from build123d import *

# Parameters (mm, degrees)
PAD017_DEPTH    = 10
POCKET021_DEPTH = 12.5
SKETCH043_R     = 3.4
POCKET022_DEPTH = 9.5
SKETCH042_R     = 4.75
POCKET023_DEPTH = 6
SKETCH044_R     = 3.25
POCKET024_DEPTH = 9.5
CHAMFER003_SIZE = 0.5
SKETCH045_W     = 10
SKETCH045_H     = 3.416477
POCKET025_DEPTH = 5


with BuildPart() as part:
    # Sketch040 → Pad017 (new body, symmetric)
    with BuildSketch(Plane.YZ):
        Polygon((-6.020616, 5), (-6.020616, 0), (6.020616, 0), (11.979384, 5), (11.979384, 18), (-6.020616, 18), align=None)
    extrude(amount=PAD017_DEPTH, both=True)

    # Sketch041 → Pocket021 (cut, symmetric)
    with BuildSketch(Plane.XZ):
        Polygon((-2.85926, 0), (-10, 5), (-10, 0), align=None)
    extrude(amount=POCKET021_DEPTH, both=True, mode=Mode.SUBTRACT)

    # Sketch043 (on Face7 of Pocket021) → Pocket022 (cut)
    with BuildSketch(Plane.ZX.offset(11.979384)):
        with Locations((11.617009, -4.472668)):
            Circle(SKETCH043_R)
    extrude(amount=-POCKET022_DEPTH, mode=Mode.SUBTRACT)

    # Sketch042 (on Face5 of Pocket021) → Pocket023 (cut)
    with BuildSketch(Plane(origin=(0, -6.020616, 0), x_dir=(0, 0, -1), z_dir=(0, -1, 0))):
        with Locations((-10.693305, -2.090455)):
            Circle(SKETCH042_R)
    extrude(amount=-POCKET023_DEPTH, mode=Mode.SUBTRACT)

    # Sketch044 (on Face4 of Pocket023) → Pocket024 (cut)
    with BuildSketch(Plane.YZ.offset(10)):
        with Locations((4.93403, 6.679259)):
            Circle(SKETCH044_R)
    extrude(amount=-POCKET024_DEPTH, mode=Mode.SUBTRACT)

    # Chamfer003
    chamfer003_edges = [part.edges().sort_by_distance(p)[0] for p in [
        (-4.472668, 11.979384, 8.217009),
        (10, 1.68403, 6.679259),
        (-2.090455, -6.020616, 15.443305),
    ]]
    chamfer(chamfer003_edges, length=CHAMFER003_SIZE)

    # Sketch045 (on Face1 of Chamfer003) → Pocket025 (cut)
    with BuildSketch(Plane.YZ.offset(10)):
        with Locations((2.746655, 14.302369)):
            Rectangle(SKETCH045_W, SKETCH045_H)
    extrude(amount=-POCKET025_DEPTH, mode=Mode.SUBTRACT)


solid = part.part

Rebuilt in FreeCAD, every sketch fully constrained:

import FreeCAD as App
import Part
import Sketcher
from FreeCAD import Vector
Q = App.Units.Quantity


def edges_at(feature, points):
    """Names of the edges that pass closest to the given points."""
    edges = feature.Shape.Edges
    near = lambda p: min(range(len(edges)), key=lambda i: edges[i].distToShape(Part.Vertex(*p))[0])
    return sorted({f"Edge{near(p) + 1}" for p in points})


def add_polygon(sketch, points):
    """Adds a closed chain of lines whose ends are joined by coincident constraints."""
    first, n = sketch.GeometryCount, len(points)
    for a, b in zip(points, points[1:] + points[:1]):
        sketch.addGeometry(Part.LineSegment(App.Vector(*a, 0), App.Vector(*b, 0)), False)
    for i in range(n):
        sketch.addConstraint(Sketcher.Constraint("Coincident", first + i, 2, first + (i + 1) % n, 1))

doc = App.newDocument("Part")
body = doc.addObject("PartDesign::Body", "Body")

sketch1 = body.newObject("Sketcher::SketchObject", "Sketch")
sketch1.AttachmentSupport = (doc.getObject("YZ_Plane"), [""])
sketch1.MapMode = "FlatFace"
add_polygon(sketch1, [(-6, 0), (6, 0), (12, 5), (12, 18), (-6, 18)])
sketch1.addConstraint(Sketcher.Constraint("Horizontal", 0))
sketch1.addConstraint(Sketcher.Constraint("Vertical", 2))
sketch1.addConstraint(Sketcher.Constraint("Horizontal", 3))
sketch1.addConstraint(Sketcher.Constraint("Vertical", 4))
sketch1.addConstraint(Sketcher.Constraint("Symmetric", 0, 2, 4, 2, -1, 1))
sketch1.addConstraint(Sketcher.Constraint("Equal", 3, 4))
sketch1.addConstraint(Sketcher.Constraint("DistanceX", 3, 2, 3, 1, Q("18 mm")))
sketch1.addConstraint(Sketcher.Constraint("DistanceY", 2, 1, 2, 2, Q("13 mm")))
sketch1.addConstraint(Sketcher.Constraint("Angle", 1, Q("40 deg")))
pad1 = body.newObject("PartDesign::Pad", "Pad")
pad1.Profile = sketch1
pad1.Length = 20
pad1.Midplane = True

sketch2 = body.newObject("Sketcher::SketchObject", "Sketch001")
sketch2.AttachmentSupport = (doc.getObject("XZ_Plane"), [""])
sketch2.MapMode = "FlatFace"
add_polygon(sketch2, [(-3, 0), (-10, 5), (-10, 0)])
sketch2.addConstraint(Sketcher.Constraint("Vertical", 1))
sketch2.addConstraint(Sketcher.Constraint("Horizontal", 2))
sketch2.addConstraint(Sketcher.Constraint("PointOnObject", 1, 2, -1))
sketch2.addConstraint(Sketcher.Constraint("DistanceY", 1, 2, 1, 1, Q("5 mm")))
sketch2.addConstraint(Sketcher.Constraint("Angle", 0, Q("145 deg")))
sketch2.addConstraint(Sketcher.Constraint("DistanceX", 0, 2, -1, 1, Q("10 mm")))
pocket1 = body.newObject("PartDesign::Pocket", "Pocket")
pocket1.Profile = sketch2
pocket1.Length = 25
pocket1.Midplane = True

sketch3 = body.newObject("Sketcher::SketchObject", "Sketch002")
sketch3.AttachmentSupport = (doc.getObject("XZ_Plane"), [""])
sketch3.MapMode = "FlatFace"
sketch3.AttachmentOffset = App.Placement(Vector(0, 0, -11.979384), App.Rotation())
sketch3.addGeometry(Part.Circle(Vector(-4.5, 11.6, 0), Vector(0, 0, 1), 3.4), False)
sketch3.addConstraint(Sketcher.Constraint("Diameter", 0, Q("6.8 mm")))
sketch3.addConstraint(Sketcher.Constraint("DistanceY", -1, 1, 0, 3, Q("11.617009 mm")))
sketch3.addConstraint(Sketcher.Constraint("DistanceX", 0, 3, -1, 1, Q("4.472668 mm")))
pocket2 = body.newObject("PartDesign::Pocket", "Pocket001")
pocket2.Profile = sketch3
pocket2.Length = 9.5
pocket2.Reversed = True

sketch4 = body.newObject("Sketcher::SketchObject", "Sketch003")
sketch4.AttachmentSupport = (doc.getObject("XZ_Plane"), [""])
sketch4.MapMode = "FlatFace"
sketch4.AttachmentOffset = App.Placement(Vector(0, 0, 6.020616), App.Rotation())
sketch4.addGeometry(Part.Circle(Vector(-2.1, 10.7, 0), Vector(0, 0, 1), 4.8), False)
sketch4.addConstraint(Sketcher.Constraint("Diameter", 0, Q("9.5 mm")))
sketch4.addConstraint(Sketcher.Constraint("DistanceX", 0, 3, -1, 1, Q("2.090455 mm")))
sketch4.addConstraint(Sketcher.Constraint("DistanceY", -1, 1, 0, 3, Q("10.693305 mm")))
pocket3 = body.newObject("PartDesign::Pocket", "Pocket002")
pocket3.Profile = sketch4
pocket3.Length = 6

sketch5 = body.newObject("Sketcher::SketchObject", "Sketch004")
sketch5.AttachmentSupport = (doc.getObject("YZ_Plane"), [""])
sketch5.MapMode = "FlatFace"
sketch5.AttachmentOffset = App.Placement(Vector(0, 0, 10), App.Rotation())
sketch5.addGeometry(Part.Circle(Vector(4.9, 6.7, 0), Vector(0, 0, 1), 3.2), False)
sketch5.addConstraint(Sketcher.Constraint("Diameter", 0, Q("6.5 mm")))
sketch5.addConstraint(Sketcher.Constraint("DistanceX", -1, 1, 0, 3, Q("4.93403 mm")))
sketch5.addConstraint(Sketcher.Constraint("DistanceY", -1, 1, 0, 3, Q("6.679259 mm")))
pocket4 = body.newObject("PartDesign::Pocket", "Pocket003")
pocket4.Profile = sketch5
pocket4.Length = 9.5
doc.recompute()

chamfer = body.newObject("PartDesign::Chamfer", "Chamfer")
chamfer.Base = (pocket4, edges_at(pocket4, [(-4.473, 11.979, 8.217), (10, 1.684, 6.679), (-2.09, -6.021, 15.443)]))
chamfer.Size = 0.5

sketch6 = body.newObject("Sketcher::SketchObject", "Sketch005")
sketch6.AttachmentSupport = (doc.getObject("YZ_Plane"), [""])
sketch6.MapMode = "FlatFace"
sketch6.AttachmentOffset = App.Placement(Vector(0, 0, 10), App.Rotation())
add_polygon(sketch6, [(-2.3, 16), (-2.3, 12.6), (7.7, 12.6), (7.7, 16)])
sketch6.addConstraint(Sketcher.Constraint("Vertical", 0))
sketch6.addConstraint(Sketcher.Constraint("Horizontal", 1))
sketch6.addConstraint(Sketcher.Constraint("Vertical", 2))
sketch6.addConstraint(Sketcher.Constraint("Horizontal", 3))
sketch6.addConstraint(Sketcher.Constraint("DistanceX", 1, 1, 1, 2, Q("10 mm")))
sketch6.addConstraint(Sketcher.Constraint("DistanceY", 0, 2, 0, 1, Q("3.416477 mm")))
sketch6.addConstraint(Sketcher.Constraint("DistanceY", -1, 1, 0, 2, Q("12.594131 mm")))
sketch6.addConstraint(Sketcher.Constraint("DistanceX", 0, 2, -1, 1, Q("2.253345 mm")))
pocket5 = body.newObject("PartDesign::Pocket", "Pocket004")
pocket5.Profile = sketch6
pocket5.Length = 5

doc.recompute()
